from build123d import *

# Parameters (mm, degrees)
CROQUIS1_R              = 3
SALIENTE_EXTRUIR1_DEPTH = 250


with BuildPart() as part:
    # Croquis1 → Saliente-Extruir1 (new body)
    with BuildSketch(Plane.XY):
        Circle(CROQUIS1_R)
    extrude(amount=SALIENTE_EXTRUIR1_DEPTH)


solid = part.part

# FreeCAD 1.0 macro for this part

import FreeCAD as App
import Part
import Sketcher
from FreeCAD import Vector

doc = App.newDocument("Part")
params = doc.addObject("Spreadsheet::Sheet", "Params")
for row, (alias, value) in enumerate([
    ("sketch1_diameter", "6 mm"),
    ("pad1_length", "250 mm"),
], start=1):
    params.set(f"A{row}", alias)
    params.set(f"B{row}", "=" + value)
    params.setAlias(f"B{row}", alias)

body = doc.addObject("PartDesign::Body", "Body")

sketch1 = body.newObject("Sketcher::SketchObject", "Sketch")
sketch1.AttachmentSupport = (doc.getObject("XY_Plane"), [""])
sketch1.MapMode = "FlatFace"
sketch1.addGeometry(Part.Circle(Vector(0, 0, 0), Vector(0, 0, 1), 3), False)
sketch1.addConstraint(Sketcher.Constraint("Coincident", 0, 3, -1, 1))
sketch1.addConstraint(Sketcher.Constraint("Diameter", 0, 6.0))
sketch1.setExpression("Constraints[1]", "Params.sketch1_diameter")
pad1 = body.newObject("PartDesign::Pad", "Pad")
pad1.Profile = sketch1
pad1.setExpression("Length", "Params.pad1_length")

doc.recompute()
